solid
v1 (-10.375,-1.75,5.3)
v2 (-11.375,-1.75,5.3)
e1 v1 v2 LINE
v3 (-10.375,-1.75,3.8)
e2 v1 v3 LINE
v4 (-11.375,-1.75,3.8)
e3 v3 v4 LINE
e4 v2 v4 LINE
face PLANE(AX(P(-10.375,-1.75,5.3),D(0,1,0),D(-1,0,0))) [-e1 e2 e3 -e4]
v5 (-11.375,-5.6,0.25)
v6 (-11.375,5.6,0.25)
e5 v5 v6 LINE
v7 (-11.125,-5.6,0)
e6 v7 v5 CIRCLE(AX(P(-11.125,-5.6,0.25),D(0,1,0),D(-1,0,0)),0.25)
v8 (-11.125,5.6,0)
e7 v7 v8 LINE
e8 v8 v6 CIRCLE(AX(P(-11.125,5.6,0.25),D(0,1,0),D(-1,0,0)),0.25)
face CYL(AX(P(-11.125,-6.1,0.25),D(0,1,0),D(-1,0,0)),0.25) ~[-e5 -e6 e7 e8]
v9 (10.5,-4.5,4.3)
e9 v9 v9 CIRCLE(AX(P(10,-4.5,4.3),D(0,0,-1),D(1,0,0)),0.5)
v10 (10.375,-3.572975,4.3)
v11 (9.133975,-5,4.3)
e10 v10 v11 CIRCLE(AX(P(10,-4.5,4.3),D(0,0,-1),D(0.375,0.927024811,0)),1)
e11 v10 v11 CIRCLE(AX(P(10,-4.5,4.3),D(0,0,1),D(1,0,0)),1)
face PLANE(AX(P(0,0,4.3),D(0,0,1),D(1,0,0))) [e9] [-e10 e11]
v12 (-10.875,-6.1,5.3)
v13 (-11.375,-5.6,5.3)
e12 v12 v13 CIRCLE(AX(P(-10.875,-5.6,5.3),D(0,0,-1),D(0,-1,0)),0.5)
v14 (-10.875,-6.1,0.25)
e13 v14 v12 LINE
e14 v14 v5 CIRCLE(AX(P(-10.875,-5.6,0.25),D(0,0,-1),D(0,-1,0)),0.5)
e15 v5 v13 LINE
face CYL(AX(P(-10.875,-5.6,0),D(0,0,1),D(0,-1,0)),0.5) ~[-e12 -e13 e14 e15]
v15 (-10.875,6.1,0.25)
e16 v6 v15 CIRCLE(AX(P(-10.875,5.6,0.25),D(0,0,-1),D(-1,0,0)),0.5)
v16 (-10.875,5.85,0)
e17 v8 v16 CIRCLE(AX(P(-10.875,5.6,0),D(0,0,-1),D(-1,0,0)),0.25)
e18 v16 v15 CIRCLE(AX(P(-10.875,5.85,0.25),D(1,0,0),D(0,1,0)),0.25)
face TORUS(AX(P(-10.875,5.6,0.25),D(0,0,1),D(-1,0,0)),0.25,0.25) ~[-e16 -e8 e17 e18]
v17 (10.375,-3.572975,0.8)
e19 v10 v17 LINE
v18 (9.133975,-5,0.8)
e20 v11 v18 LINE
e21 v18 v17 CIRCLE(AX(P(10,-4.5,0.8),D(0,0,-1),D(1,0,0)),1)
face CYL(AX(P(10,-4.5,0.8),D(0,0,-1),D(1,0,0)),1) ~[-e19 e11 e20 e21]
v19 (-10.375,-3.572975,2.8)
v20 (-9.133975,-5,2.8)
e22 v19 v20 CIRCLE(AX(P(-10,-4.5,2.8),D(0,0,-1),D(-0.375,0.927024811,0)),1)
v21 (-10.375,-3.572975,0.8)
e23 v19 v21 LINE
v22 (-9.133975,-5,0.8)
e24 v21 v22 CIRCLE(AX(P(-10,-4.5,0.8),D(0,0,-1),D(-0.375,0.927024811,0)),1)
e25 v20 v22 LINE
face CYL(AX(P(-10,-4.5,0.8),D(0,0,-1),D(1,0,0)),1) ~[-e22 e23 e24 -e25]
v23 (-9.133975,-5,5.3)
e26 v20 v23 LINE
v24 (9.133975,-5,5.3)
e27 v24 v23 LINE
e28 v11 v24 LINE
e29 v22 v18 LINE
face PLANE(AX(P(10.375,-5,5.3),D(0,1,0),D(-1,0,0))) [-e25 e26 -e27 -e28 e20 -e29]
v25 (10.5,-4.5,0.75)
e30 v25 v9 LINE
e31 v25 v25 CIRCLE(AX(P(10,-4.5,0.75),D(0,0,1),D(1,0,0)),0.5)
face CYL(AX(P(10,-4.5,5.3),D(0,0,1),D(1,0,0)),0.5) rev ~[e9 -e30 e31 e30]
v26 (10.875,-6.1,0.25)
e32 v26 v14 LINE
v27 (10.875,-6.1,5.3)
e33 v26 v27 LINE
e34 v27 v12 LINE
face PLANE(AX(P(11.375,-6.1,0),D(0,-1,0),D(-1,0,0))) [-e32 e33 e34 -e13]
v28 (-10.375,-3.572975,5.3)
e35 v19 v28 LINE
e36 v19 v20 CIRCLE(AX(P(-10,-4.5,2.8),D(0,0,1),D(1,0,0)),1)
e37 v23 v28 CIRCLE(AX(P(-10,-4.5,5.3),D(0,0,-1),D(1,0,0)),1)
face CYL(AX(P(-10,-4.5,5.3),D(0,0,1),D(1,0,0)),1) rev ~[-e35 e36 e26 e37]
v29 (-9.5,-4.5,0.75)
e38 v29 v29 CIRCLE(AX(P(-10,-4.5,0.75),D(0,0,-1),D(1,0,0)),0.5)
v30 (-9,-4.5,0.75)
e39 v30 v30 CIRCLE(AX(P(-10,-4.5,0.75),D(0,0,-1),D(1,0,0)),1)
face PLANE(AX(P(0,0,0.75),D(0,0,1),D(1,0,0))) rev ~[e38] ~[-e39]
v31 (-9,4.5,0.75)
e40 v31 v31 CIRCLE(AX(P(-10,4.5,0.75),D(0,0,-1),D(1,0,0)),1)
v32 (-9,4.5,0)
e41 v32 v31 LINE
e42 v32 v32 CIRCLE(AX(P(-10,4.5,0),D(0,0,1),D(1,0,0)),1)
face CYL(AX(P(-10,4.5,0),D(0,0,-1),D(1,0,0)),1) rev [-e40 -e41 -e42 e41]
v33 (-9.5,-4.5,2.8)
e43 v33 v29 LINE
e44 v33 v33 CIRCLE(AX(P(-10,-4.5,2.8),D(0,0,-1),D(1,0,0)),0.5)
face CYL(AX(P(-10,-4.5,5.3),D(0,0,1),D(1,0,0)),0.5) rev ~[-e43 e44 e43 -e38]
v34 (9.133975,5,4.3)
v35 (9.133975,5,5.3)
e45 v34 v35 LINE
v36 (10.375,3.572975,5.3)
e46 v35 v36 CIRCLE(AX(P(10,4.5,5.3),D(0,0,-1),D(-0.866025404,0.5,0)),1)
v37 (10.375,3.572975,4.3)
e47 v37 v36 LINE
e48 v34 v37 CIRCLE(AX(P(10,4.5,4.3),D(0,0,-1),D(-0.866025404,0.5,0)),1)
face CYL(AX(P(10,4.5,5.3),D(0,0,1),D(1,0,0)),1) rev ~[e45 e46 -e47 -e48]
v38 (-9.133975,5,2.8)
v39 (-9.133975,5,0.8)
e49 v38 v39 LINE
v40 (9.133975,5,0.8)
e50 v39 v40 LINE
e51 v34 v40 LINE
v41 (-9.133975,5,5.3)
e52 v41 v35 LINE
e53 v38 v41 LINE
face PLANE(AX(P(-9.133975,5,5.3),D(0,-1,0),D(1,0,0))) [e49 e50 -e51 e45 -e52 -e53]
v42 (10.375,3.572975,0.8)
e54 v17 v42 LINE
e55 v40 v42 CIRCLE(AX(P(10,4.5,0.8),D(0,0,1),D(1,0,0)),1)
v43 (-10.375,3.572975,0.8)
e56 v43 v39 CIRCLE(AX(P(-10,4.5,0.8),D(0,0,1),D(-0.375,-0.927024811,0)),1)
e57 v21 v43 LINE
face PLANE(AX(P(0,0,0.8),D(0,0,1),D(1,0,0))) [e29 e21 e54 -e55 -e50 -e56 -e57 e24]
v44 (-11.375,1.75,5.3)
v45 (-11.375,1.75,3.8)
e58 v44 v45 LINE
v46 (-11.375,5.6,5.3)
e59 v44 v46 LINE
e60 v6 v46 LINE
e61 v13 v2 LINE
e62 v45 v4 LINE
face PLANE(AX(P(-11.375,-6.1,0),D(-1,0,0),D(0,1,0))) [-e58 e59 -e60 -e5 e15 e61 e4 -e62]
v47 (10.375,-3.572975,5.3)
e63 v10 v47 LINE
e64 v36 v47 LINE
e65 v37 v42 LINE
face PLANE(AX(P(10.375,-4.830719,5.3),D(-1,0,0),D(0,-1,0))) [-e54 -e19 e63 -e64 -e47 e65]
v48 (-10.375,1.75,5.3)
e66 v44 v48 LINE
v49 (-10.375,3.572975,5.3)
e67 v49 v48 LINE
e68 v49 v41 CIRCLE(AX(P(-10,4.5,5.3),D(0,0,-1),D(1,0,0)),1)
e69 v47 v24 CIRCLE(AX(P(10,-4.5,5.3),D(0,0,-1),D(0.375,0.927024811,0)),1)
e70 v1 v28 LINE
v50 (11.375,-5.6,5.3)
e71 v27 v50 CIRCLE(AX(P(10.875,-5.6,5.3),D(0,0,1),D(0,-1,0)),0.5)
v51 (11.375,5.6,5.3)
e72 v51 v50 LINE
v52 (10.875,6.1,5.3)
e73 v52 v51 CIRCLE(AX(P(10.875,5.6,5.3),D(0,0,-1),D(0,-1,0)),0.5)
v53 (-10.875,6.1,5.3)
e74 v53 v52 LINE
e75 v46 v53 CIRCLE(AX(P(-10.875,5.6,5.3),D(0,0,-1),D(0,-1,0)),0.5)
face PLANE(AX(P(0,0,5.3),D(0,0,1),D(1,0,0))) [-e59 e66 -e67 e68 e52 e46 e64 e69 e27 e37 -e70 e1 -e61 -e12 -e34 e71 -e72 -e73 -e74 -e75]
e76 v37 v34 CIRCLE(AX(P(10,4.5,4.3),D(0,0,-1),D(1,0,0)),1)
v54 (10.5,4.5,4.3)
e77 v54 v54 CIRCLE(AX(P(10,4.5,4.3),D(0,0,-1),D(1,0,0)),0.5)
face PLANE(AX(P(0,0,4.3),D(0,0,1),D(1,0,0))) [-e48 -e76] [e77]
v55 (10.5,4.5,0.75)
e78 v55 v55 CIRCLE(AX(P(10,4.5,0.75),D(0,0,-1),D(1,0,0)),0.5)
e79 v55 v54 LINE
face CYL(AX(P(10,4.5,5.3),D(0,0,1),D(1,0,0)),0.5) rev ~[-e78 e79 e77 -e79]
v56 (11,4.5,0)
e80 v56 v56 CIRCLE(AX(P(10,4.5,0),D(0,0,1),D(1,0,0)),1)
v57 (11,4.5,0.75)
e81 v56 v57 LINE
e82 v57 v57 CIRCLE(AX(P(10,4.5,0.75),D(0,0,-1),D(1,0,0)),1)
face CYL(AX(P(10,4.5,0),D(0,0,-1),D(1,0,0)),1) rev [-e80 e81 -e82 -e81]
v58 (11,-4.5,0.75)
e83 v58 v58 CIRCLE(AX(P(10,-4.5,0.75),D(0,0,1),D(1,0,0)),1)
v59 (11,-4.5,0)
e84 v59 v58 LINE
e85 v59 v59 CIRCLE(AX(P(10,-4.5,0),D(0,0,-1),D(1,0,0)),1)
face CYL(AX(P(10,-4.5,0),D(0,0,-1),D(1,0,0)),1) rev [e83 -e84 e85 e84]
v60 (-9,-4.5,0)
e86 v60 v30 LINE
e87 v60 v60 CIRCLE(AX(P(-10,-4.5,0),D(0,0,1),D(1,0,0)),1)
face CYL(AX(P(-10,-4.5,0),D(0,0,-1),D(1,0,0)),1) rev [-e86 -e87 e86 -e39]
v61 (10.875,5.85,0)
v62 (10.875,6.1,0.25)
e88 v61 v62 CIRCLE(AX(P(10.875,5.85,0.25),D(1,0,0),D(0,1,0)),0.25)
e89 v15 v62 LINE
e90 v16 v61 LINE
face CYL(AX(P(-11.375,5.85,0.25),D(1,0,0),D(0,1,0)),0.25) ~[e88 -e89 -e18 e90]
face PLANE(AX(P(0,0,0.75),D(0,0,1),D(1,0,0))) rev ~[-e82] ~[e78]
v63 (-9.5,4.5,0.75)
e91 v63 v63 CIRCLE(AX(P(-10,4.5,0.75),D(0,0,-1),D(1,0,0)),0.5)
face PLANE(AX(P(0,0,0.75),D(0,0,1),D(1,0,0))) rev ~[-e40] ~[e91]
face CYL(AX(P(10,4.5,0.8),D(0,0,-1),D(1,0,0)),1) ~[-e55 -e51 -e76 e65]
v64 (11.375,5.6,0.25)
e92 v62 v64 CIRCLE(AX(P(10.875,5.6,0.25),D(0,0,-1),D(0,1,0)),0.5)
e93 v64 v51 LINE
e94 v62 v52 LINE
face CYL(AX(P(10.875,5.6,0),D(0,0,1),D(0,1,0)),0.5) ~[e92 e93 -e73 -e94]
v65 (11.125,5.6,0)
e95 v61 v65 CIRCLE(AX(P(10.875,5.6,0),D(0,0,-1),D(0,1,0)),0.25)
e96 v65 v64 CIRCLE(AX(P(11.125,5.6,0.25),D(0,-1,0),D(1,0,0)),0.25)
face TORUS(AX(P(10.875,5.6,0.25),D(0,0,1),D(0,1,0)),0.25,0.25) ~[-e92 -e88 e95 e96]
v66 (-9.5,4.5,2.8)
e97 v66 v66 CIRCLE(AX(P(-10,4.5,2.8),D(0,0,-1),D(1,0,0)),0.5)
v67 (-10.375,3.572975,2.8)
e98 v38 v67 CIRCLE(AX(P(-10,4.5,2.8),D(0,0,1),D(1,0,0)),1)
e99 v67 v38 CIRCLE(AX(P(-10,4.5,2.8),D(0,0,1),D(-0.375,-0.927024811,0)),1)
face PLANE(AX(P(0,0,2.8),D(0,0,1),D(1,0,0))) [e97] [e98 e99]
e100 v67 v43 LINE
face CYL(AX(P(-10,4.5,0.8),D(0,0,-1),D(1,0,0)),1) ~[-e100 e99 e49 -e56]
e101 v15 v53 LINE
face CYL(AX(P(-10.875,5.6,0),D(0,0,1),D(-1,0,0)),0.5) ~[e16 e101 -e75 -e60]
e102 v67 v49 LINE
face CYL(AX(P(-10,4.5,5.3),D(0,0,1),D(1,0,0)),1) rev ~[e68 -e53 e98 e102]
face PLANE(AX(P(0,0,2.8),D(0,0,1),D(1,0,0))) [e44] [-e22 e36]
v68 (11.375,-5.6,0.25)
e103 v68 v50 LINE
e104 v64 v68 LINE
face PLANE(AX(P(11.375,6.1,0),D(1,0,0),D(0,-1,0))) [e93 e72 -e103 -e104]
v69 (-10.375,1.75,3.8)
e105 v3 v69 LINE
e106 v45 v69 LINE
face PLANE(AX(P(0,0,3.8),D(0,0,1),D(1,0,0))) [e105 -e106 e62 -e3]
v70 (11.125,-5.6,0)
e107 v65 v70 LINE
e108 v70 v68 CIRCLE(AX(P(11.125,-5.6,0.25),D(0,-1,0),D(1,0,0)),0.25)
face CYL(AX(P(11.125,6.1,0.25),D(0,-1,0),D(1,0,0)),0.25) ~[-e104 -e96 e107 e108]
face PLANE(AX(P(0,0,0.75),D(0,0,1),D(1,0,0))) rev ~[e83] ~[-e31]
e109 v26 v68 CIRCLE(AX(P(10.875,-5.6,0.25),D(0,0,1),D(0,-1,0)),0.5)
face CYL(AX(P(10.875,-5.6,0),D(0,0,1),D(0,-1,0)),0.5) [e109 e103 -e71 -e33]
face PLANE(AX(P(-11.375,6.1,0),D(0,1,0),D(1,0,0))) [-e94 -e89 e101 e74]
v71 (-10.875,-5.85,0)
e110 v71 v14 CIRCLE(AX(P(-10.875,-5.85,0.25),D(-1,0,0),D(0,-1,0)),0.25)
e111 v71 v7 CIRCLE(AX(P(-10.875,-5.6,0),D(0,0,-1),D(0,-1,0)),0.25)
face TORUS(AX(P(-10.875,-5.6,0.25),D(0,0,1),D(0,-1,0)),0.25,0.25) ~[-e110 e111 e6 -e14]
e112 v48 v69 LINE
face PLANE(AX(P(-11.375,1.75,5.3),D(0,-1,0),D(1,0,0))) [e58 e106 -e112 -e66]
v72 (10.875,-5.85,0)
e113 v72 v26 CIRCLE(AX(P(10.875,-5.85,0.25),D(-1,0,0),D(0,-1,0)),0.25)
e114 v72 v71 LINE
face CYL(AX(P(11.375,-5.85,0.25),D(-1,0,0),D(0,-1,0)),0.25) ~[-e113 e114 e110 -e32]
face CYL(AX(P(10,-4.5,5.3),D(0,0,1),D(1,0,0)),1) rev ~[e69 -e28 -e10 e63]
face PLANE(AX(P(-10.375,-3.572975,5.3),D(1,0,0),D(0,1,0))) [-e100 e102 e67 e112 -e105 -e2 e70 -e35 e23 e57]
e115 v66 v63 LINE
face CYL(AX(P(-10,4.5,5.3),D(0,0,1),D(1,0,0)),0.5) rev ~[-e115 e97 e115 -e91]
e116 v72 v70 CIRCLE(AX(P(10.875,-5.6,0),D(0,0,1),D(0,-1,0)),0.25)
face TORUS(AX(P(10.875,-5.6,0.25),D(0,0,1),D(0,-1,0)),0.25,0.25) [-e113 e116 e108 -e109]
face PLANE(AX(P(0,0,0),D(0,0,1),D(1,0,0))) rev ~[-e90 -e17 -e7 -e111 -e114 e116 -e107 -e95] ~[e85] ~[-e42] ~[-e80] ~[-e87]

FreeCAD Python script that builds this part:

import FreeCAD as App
import Part
import Sketcher
Q = App.Units.Quantity


def edges_at(feature, points):
    """Names of the edges that pass closest to the given points."""
    edges = feature.Shape.Edges
    near = lambda p: min(range(len(edges)), key=lambda i: edges[i].distToShape(Part.Vertex(*p))[0])
    return sorted({f"Edge{near(p) + 1}" for p in points})


def add_polygon(sketch, points):
    """Adds a closed chain of lines whose ends are joined by coincident constraints."""
    first, n = sketch.GeometryCount, len(points)
    for a, b in zip(points, points[1:] + points[:1]):
        sketch.addGeometry(Part.LineSegment(App.Vector(*a, 0), App.Vector(*b, 0)), False)
    for i in range(n):
        sketch.addConstraint(Sketcher.Constraint("Coincident", first + i, 2, first + (i + 1) % n, 1))

doc = App.newDocument("Part")
body = doc.addObject("PartDesign::Body", "Body")

sketch1 = body.newObject("Sketcher::SketchObject", "Sketch")
sketch1.AttachmentSupport = (doc.getObject("XY_Plane"), [""])
sketch1.MapMode = "FlatFace"
add_polygon(sketch1, [(-11, -6), (11, -6), (11, 6), (-11, 6)])
sketch1.addConstraint([
    Sketcher.Constraint("Horizontal", 0),
    Sketcher.Constraint("Vertical", 1),
    Sketcher.Constraint("Horizontal", 2),
    Sketcher.Constraint("Vertical", 3),
    Sketcher.Constraint("Symmetric", 0, 2, 2, 2, -1, 1),
    Sketcher.Constraint("DistanceY", 1, 1, 1, 2, Q("12.2 mm")),
    Sketcher.Constraint("DistanceX", 0, 1, 0, 2, Q("22.75 mm")),
])
pad1 = body.newObject("PartDesign::Pad", "Pad")
pad1.Profile = sketch1
pad1.Length = 5.3
doc.recompute()

fillet = body.newObject("PartDesign::Fillet", "Fillet")
fillet.Base = (pad1, edges_at(pad1, [
    (-11.375, 6.1, 2.65),
    (-11.375, -6.1, 2.65),
    (11.375, -6.1, 2.65),
    (11.375, 6.1, 2.65),
]))
fillet.Radius = 0.5
doc.recompute()

fillet2 = body.newObject("PartDesign::Fillet", "Fillet001")
fillet2.Base = (fillet, edges_at(fillet, [
    (0, -6.1, 0),
    (-11.375, 0, 0),
    (0, 6.1, 0),
    (11.375, 0, 0),
]))
fillet2.Radius = 0.25

sketch2 = body.newObject("Sketcher::SketchObject", "Sketch001")
sketch2.AttachmentSupport = (doc.getObject("XY_Plane"), [""])
sketch2.MapMode = "FlatFace"
sketch2.AttachmentOffset = App.Placement(App.Vector(0, 0, 5.3), App.Rotation())
add_polygon(sketch2, [(10, -5), (10, 5), (-10, 5), (-10, -5)])
sketch2.addConstraint([
    Sketcher.Constraint("Vertical", 0),
    Sketcher.Constraint("Horizontal", 1),
    Sketcher.Constraint("Vertical", 2),
    Sketcher.Constraint("Horizontal", 3),
    Sketcher.Constraint("Symmetric", 0, 2, 2, 2, -1, 1),
    Sketcher.Constraint("DistanceY", 0, 1, 0, 2, Q("10 mm")),
    Sketcher.Constraint("DistanceX", 1, 2, 1, 1, Q("20.75 mm")),
])
pocket1 = body.newObject("PartDesign::Pocket", "Pocket")
pocket1.Profile = sketch2
pocket1.Length = 4.5

sketch3 = body.newObject("Sketcher::SketchObject", "Sketch002")
sketch3.AttachmentSupport = (doc.getObject("XY_Plane"), [""])
sketch3.MapMode = "FlatFace"
sketch3.AttachmentOffset = App.Placement(App.Vector(0, 0, 5.3), App.Rotation())
sketch3.addGeometry([
    Part.Circle(App.Vector(10, -4.5, 0), App.Vector(0, 0, 1), 0.5),
    Part.Circle(App.Vector(-10, -4.5, 0), App.Vector(0, 0, 1), 0.5),
    Part.Circle(App.Vector(10, 4.5, 0), App.Vector(0, 0, 1), 0.5),
    Part.Circle(App.Vector(-10, 4.5, 0), App.Vector(0, 0, 1), 0.5),
], False)
sketch3.addConstraint([
    Sketcher.Constraint("Equal", 0, 1),
    Sketcher.Constraint("Equal", 1, 2),
    Sketcher.Constraint("Equal", 2, 3),
    Sketcher.Constraint("Symmetric", 1, 3, 2, 3, -1, 1),
    Sketcher.Constraint("Symmetric", 0, 3, 3, 3, -1, 1),
    Sketcher.Constraint("Symmetric", 0, 3, 1, 3, -2),
    Sketcher.Constraint("Diameter", 0, Q("1 mm")),
    Sketcher.Constraint("DistanceX", 1, 3, 0, 3, Q("20 mm")),
    Sketcher.Constraint("DistanceY", 0, 3, 2, 3, Q("9 mm")),
])
pocket2 = body.newObject("PartDesign::Pocket", "Pocket001")
pocket2.Profile = sketch3
pocket2.Type = "ThroughAll"

sketch4 = body.newObject("Sketcher::SketchObject", "Sketch003")
sketch4.AttachmentSupport = (doc.getObject("XY_Plane"), [""])
sketch4.MapMode = "FlatFace"
sketch4.AttachmentOffset = App.Placement(App.Vector(0, 0, 0.8), App.Rotation())
sketch4.addGeometry([
    Part.Circle(App.Vector(-10, -4.5, 0), App.Vector(0, 0, 1), 1),
    Part.Circle(App.Vector(-10, -4.5, 0), App.Vector(0, 0, 1), 0.5),
    Part.Circle(App.Vector(-10, 4.5, 0), App.Vector(0, 0, 1), 1),
    Part.Circle(App.Vector(-10, 4.5, 0), App.Vector(0, 0, 1), 0.5),
], False)
sketch4.addConstraint([
    Sketcher.Constraint("Coincident", 1, 3, 0, 3),
    Sketcher.Constraint("Coincident", 3, 3, 2, 3),
    Sketcher.Constraint("Equal", 0, 2),
    Sketcher.Constraint("Equal", 1, 3),
    Sketcher.Constraint("Symmetric", 0, 3, 2, 3, -1),
    Sketcher.Constraint("Diameter", 0, Q("2 mm")),
    Sketcher.Constraint("Diameter", 1, Q("1 mm")),
    Sketcher.Constraint("DistanceY", 0, 3, 2, 3, Q("9 mm")),
    Sketcher.Constraint("DistanceX", 0, 3, -1, 1, Q("10 mm")),
])
pad2 = body.newObject("PartDesign::Pad", "Pad001")
pad2.Profile = sketch4
pad2.Length = 2

sketch5 = body.newObject("Sketcher::SketchObject", "Sketch004")
sketch5.AttachmentSupport = (doc.getObject("XY_Plane"), [""])
sketch5.MapMode = "FlatFace"
sketch5.AttachmentOffset = App.Placement(App.Vector(0, 0, 5.3), App.Rotation())
sketch5.addGeometry([
    Part.Circle(App.Vector(-10, -4.5, 0), App.Vector(0, 0, 1), 1),
    Part.Circle(App.Vector(-10, -4.5, 0), App.Vector(0, 0, 1), 0.5),
    Part.Circle(App.Vector(-10, 4.5, 0), App.Vector(0, 0, 1), 1),
    Part.Circle(App.Vector(-10, 4.5, 0), App.Vector(0, 0, 1), 0.5),
], False)
sketch5.addConstraint([
    Sketcher.Constraint("Coincident", 1, 3, 0, 3),
    Sketcher.Constraint("Coincident", 3, 3, 2, 3),
    Sketcher.Constraint("Equal", 0, 2),
    Sketcher.Constraint("Equal", 1, 3),
    Sketcher.Constraint("Symmetric", 0, 3, 2, 3, -1),
    Sketcher.Constraint("Diameter", 0, Q("2 mm")),
    Sketcher.Constraint("Diameter", 1, Q("1 mm")),
    Sketcher.Constraint("DistanceY", 0, 3, 2, 3, Q("9 mm")),
    Sketcher.Constraint("DistanceX", 0, 3, -1, 1, Q("10 mm")),
])
pocket3 = body.newObject("PartDesign::Pocket", "Pocket002")
pocket3.Profile = sketch5
pocket3.Length = 2.5

sketch6 = body.newObject("Sketcher::SketchObject", "Sketch005")
sketch6.AttachmentSupport = (doc.getObject("XY_Plane"), [""])
sketch6.MapMode = "FlatFace"
sketch6.AttachmentOffset = App.Placement(App.Vector(0, 0, 0.8), App.Rotation())
sketch6.addGeometry([
    Part.Circle(App.Vector(10, -4.5, 0), App.Vector(0, 0, 1), 1),
    Part.Circle(App.Vector(10, -4.5, 0), App.Vector(0, 0, 1), 0.5),
    Part.Circle(App.Vector(10, 4.5, 0), App.Vector(0, 0, 1), 1),
    Part.Circle(App.Vector(10, 4.5, 0), App.Vector(0, 0, 1), 0.5),
], False)
sketch6.addConstraint([
    Sketcher.Constraint("Coincident", 1, 3, 0, 3),
    Sketcher.Constraint("Coincident", 3, 3, 2, 3),
    Sketcher.Constraint("Equal", 0, 2),
    Sketcher.Constraint("Equal", 1, 3),
    Sketcher.Constraint("Symmetric", 0, 3, 2, 3, -1),
    Sketcher.Constraint("Diameter", 0, Q("2 mm")),
    Sketcher.Constraint("Diameter", 1, Q("1 mm")),
    Sketcher.Constraint("DistanceY", 0, 3, 2, 3, Q("9 mm")),
    Sketcher.Constraint("DistanceX", -1, 1, 0, 3, Q("10 mm")),
])
pad3 = body.newObject("PartDesign::Pad", "Pad002")
pad3.Profile = sketch6
pad3.Length = 3.5

sketch7 = body.newObject("Sketcher::SketchObject", "Sketch006")
sketch7.AttachmentSupport = (doc.getObject("XY_Plane"), [""])
sketch7.MapMode = "FlatFace"
sketch7.AttachmentOffset = App.Placement(App.Vector(0, 0, 5.3), App.Rotation())
sketch7.addGeometry([
    Part.Circle(App.Vector(10, -4.5, 0), App.Vector(0, 0, 1), 1),
    Part.Circle(App.Vector(10, -4.5, 0), App.Vector(0, 0, 1), 0.5),
    Part.Circle(App.Vector(10, 4.5, 0), App.Vector(0, 0, 1), 1),
    Part.Circle(App.Vector(10, 4.5, 0), App.Vector(0, 0, 1), 0.5),
], False)
sketch7.addConstraint([
    Sketcher.Constraint("Coincident", 1, 3, 0, 3),
    Sketcher.Constraint("Coincident", 3, 3, 2, 3),
    Sketcher.Constraint("Equal", 0, 2),
    Sketcher.Constraint("Equal", 1, 3),
    Sketcher.Constraint("Symmetric", 0, 3, 2, 3, -1),
    Sketcher.Constraint("Diameter", 0, Q("2 mm")),
    Sketcher.Constraint("Diameter", 1, Q("1 mm")),
    Sketcher.Constraint("DistanceY", 0, 3, 2, 3, Q("9 mm")),
    Sketcher.Constraint("DistanceX", -1, 1, 0, 3, Q("10 mm")),
])
pocket4 = body.newObject("PartDesign::Pocket", "Pocket003")
pocket4.Profile = sketch7
pocket4.Length = 1

sketch8 = body.newObject("Sketcher::SketchObject", "Sketch007")
sketch8.AttachmentSupport = (doc.getObject("XY_Plane"), [""])
sketch8.MapMode = "FlatFace"
sketch8.AttachmentOffset = App.Placement(App.Vector(0, 0, 5.3), App.Rotation())
add_polygon(sketch8, [(-11.4, -1.8), (-10.4, -1.8), (-10.4, 1.8), (-11.4, 1.8)])
sketch8.addConstraint([
    Sketcher.Constraint("Horizontal", 0),
    Sketcher.Constraint("Vertical", 1),
    Sketcher.Constraint("Horizontal", 2),
    Sketcher.Constraint("Vertical", 3),
    Sketcher.Constraint("DistanceX", 0, 1, 0, 2, Q("1 mm")),
    Sketcher.Constraint("DistanceY", 1, 1, 1, 2, Q("3.5 mm")),
    Sketcher.Constraint("DistanceY", 0, 2, -1, 1, Q("1.75 mm")),
    Sketcher.Constraint("DistanceX", 0, 2, -1, 1, Q("10.375 mm")),
])
pocket5 = body.newObject("PartDesign::Pocket", "Pocket004")
pocket5.Profile = sketch8
pocket5.Length = 1.5

sketch9 = body.newObject("Sketcher::SketchObject", "Sketch008")
sketch9.AttachmentSupport = (doc.getObject("XY_Plane"), [""])
sketch9.MapMode = "FlatFace"
sketch9.addGeometry([
    Part.Circle(App.Vector(10, -4.5, 0), App.Vector(0, 0, 1), 1),
    Part.Circle(App.Vector(10, -4.5, 0), App.Vector(0, 0, 1), 0.5),
    Part.Circle(App.Vector(-10, -4.5, 0), App.Vector(0, 0, 1), 1),
    Part.Circle(App.Vector(-10, -4.5, 0), App.Vector(0, 0, 1), 0.5),
    Part.Circle(App.Vector(10, 4.5, 0), App.Vector(0, 0, 1), 1),
    Part.Circle(App.Vector(10, 4.5, 0), App.Vector(0, 0, 1), 0.5),
    Part.Circle(App.Vector(-10, 4.5, 0), App.Vector(0, 0, 1), 1),
    Part.Circle(App.Vector(-10, 4.5, 0), App.Vector(0, 0, 1), 0.5),
], False)
sketch9.addConstraint([
    Sketcher.Constraint("Coincident", 1, 3, 0, 3),
    Sketcher.Constraint("Coincident", 3, 3, 2, 3),
    Sketcher.Constraint("Coincident", 5, 3, 4, 3),
    Sketcher.Constraint("Coincident", 7, 3, 6, 3),
    Sketcher.Constraint("Equal", 0, 2),
    Sketcher.Constraint("Equal", 1, 3),
    Sketcher.Constraint("Equal", 2, 4),
    Sketcher.Constraint("Equal", 3, 5),
    Sketcher.Constraint("Equal", 4, 6),
    Sketcher.Constraint("Equal", 5, 7),
    Sketcher.Constraint("Symmetric", 2, 3, 4, 3, -1, 1),
    Sketcher.Constraint("Symmetric", 0, 3, 6, 3, -1, 1),
    Sketcher.Constraint("Symmetric", 0, 3, 2, 3, -2),
    Sketcher.Constraint("Diameter", 0, Q("2 mm")),
    Sketcher.Constraint("Diameter", 1, Q("1 mm")),
    Sketcher.Constraint("DistanceX", 2, 3, 0, 3, Q("20 mm")),
    Sketcher.Constraint("DistanceY", 0, 3, 4, 3, Q("9 mm")),
])
pocket6 = body.newObject("PartDesign::Pocket", "Pocket005")
pocket6.Profile = sketch9
pocket6.Length = 0.75
pocket6.Reversed = True

doc.recompute()
